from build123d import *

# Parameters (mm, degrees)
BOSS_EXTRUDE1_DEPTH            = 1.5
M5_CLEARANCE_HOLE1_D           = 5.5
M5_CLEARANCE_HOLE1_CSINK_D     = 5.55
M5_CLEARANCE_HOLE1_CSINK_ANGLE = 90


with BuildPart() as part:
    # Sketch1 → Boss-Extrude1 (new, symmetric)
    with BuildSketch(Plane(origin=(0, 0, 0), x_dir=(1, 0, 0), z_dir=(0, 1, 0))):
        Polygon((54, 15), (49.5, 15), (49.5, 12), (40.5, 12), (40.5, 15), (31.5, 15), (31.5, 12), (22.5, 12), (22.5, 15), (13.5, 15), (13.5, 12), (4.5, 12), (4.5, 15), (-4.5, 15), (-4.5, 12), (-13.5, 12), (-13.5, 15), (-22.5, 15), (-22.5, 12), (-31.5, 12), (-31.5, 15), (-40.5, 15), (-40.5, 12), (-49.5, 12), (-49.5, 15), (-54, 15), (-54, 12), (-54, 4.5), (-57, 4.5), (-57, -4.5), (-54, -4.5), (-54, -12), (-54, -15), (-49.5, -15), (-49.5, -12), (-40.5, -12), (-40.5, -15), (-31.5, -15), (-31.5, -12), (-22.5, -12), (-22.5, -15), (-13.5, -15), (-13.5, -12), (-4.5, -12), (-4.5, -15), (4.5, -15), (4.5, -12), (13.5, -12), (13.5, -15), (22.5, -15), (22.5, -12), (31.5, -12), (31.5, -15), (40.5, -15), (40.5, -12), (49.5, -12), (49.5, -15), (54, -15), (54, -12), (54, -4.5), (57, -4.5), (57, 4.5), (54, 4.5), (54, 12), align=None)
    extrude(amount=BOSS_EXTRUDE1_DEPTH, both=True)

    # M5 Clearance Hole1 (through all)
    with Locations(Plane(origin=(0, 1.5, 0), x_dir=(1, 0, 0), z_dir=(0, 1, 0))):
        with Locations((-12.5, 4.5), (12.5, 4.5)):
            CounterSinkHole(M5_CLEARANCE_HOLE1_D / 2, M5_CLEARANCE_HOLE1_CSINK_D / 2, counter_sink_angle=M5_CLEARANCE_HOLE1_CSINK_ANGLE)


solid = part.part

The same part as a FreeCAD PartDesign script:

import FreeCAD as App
import Part
import Sketcher
from FreeCAD import Vector
Q = App.Units.Quantity

doc = App.newDocument("Part")
body = doc.addObject("PartDesign::Body", "Body")

sketch1 = body.newObject("Sketcher::SketchObject", "Sketch")
sketch1.AttachmentSupport = (doc.getObject("XZ_Plane"), [""])
sketch1.MapMode = "FlatFace"
sketch1.addGeometry(Part.LineSegment(Vector(54, -15, 0), Vector(49.5, -15, 0)), False)
sketch1.addGeometry(Part.LineSegment(Vector(49.5, -15, 0), Vector(49.5, -12, 0)), False)
sketch1.addGeometry(Part.LineSegment(Vector(49.5, -12, 0), Vector(40.5, -12, 0)), False)
sketch1.addGeometry(Part.LineSegment(Vector(40.5, -12, 0), Vector(40.5, -15, 0)), False)
sketch1.addGeometry(Part.LineSegment(Vector(40.5, -15, 0), Vector(31.5, -15, 0)), False)
sketch1.addGeometry(Part.LineSegment(Vector(31.5, -15, 0), Vector(31.5, -12, 0)), False)
sketch1.addGeometry(Part.LineSegment(Vector(31.5, -12, 0), Vector(22.5, -12, 0)), False)
sketch1.addGeometry(Part.LineSegment(Vector(22.5, -12, 0), Vector(22.5, -15, 0)), False)
sketch1.addGeometry(Part.LineSegment(Vector(22.5, -15, 0), Vector(13.5, -15, 0)), False)
sketch1.addGeometry(Part.LineSegment(Vector(13.5, -15, 0), Vector(13.5, -12, 0)), False)
sketch1.addGeometry(Part.LineSegment(Vector(13.5, -12, 0), Vector(4.5, -12, 0)), False)
sketch1.addGeometry(Part.LineSegment(Vector(4.5, -12, 0), Vector(4.5, -15, 0)), False)
sketch1.addGeometry(Part.LineSegment(Vector(4.5, -15, 0), Vector(-4.5, -15, 0)), False)
sketch1.addGeometry(Part.LineSegment(Vector(-4.5, -15, 0), Vector(-4.5, -12, 0)), False)
sketch1.addGeometry(Part.LineSegment(Vector(-4.5, -12, 0), Vector(-13.5, -12, 0)), False)
sketch1.addGeometry(Part.LineSegment(Vector(-13.5, -12, 0), Vector(-13.5, -15, 0)), False)
sketch1.addGeometry(Part.LineSegment(Vector(-13.5, -15, 0), Vector(-22.5, -15, 0)), False)
sketch1.addGeometry(Part.LineSegment(Vector(-22.5, -15, 0), Vector(-22.5, -12, 0)), False)
sketch1.addGeometry(Part.LineSegment(Vector(-22.5, -12, 0), Vector(-31.5, -12, 0)), False)
sketch1.addGeometry(Part.LineSegment(Vector(-31.5, -12, 0), Vector(-31.5, -15, 0)), False)
sketch1.addGeometry(Part.LineSegment(Vector(-31.5, -15, 0), Vector(-40.5, -15, 0)), False)
sketch1.addGeometry(Part.LineSegment(Vector(-40.5, -15, 0), Vector(-40.5, -12, 0)), False)
sketch1.addGeometry(Part.LineSegment(Vector(-40.5, -12, 0), Vector(-49.5, -12, 0)), False)
sketch1.addGeometry(Part.LineSegment(Vector(-49.5, -12, 0), Vector(-49.5, -15, 0)), False)
sketch1.addGeometry(Part.LineSegment(Vector(-49.5, -15, 0), Vector(-54, -15, 0)), False)
sketch1.addGeometry(Part.LineSegment(Vector(-54, -15, 0), Vector(-54, -4.5, 0)), False)
sketch1.addGeometry(Part.LineSegment(Vector(-54, -4.5, 0), Vector(-57, -4.5, 0)), False)
sketch1.addGeometry(Part.LineSegment(Vector(-57, -4.5, 0), Vector(-57, 4.5, 0)), False)
sketch1.addGeometry(Part.LineSegment(Vector(-57, 4.5, 0), Vector(-54, 4.5, 0)), False)
sketch1.addGeometry(Part.LineSegment(Vector(-54, 4.5, 0), Vector(-54, 15, 0)), False)
sketch1.addGeometry(Part.LineSegment(Vector(-54, 15, 0), Vector(-49.5, 15, 0)), False)
sketch1.addGeometry(Part.LineSegment(Vector(-49.5, 15, 0), Vector(-49.5, 12, 0)), False)
sketch1.addGeometry(Part.LineSegment(Vector(-49.5, 12, 0), Vector(-40.5, 12, 0)), False)
sketch1.addGeometry(Part.LineSegment(Vector(-40.5, 12, 0), Vector(-40.5, 15, 0)), False)
sketch1.addGeometry(Part.LineSegment(Vector(-40.5, 15, 0), Vector(-31.5, 15, 0)), False)
sketch1.addGeometry(Part.LineSegment(Vector(-31.5, 15, 0), Vector(-31.5, 12, 0)), False)
sketch1.addGeometry(Part.LineSegment(Vector(-31.5, 12, 0), Vector(-22.5, 12, 0)), False)
sketch1.addGeometry(Part.LineSegment(Vector(-22.5, 12, 0), Vector(-22.5, 15, 0)), False)
sketch1.addGeometry(Part.LineSegment(Vector(-22.5, 15, 0), Vector(-13.5, 15, 0)), False)
sketch1.addGeometry(Part.LineSegment(Vector(-13.5, 15, 0), Vector(-13.5, 12, 0)), False)
sketch1.addGeometry(Part.LineSegment(Vector(-13.5, 12, 0), Vector(-4.5, 12, 0)), False)
sketch1.addGeometry(Part.LineSegment(Vector(-4.5, 12, 0), Vector(-4.5, 15, 0)), False)
sketch1.addGeometry(Part.LineSegment(Vector(-4.5, 15, 0), Vector(4.5, 15, 0)), False)
sketch1.addGeometry(Part.LineSegment(Vector(4.5, 15, 0), Vector(4.5, 12, 0)), False)
sketch1.addGeometry(Part.LineSegment(Vector(4.5, 12, 0), Vector(13.5, 12, 0)), False)
sketch1.addGeometry(Part.LineSegment(Vector(13.5, 12, 0), Vector(13.5, 15, 0)), False)
sketch1.addGeometry(Part.LineSegment(Vector(13.5, 15, 0), Vector(22.5, 15, 0)), False)
sketch1.addGeometry(Part.LineSegment(Vector(22.5, 15, 0), Vector(22.5, 12, 0)), False)
sketch1.addGeometry(Part.LineSegment(Vector(22.5, 12, 0), Vector(31.5, 12, 0)), False)
sketch1.addGeometry(Part.LineSegment(Vector(31.5, 12, 0), Vector(31.5, 15, 0)), False)
sketch1.addGeometry(Part.LineSegment(Vector(31.5, 15, 0), Vector(40.5, 15, 0)), False)
sketch1.addGeometry(Part.LineSegment(Vector(40.5, 15, 0), Vector(40.5, 12, 0)), False)
sketch1.addGeometry(Part.LineSegment(Vector(40.5, 12, 0), Vector(49.5, 12, 0)), False)
sketch1.addGeometry(Part.LineSegment(Vector(49.5, 12, 0), Vector(49.5, 15, 0)), False)
sketch1.addGeometry(Part.LineSegment(Vector(49.5, 15, 0), Vector(54, 15, 0)), False)
sketch1.addGeometry(Part.LineSegment(Vector(54, 15, 0), Vector(54, 4.5, 0)), False)
sketch1.addGeometry(Part.LineSegment(Vector(54, 4.5, 0), Vector(57, 4.5, 0)), False)
sketch1.addGeometry(Part.LineSegment(Vector(57, 4.5, 0), Vector(57, -4.5, 0)), False)
sketch1.addGeometry(Part.LineSegment(Vector(57, -4.5, 0), Vector(54, -4.5, 0)), False)
sketch1.addGeometry(Part.LineSegment(Vector(54, -4.5, 0), Vector(54, -15, 0)), False)
sketch1.addConstraint(Sketcher.Constraint("Coincident", 0, 2, 1, 1))
sketch1.addConstraint(Sketcher.Constraint("Coincident", 1, 2, 2, 1))
sketch1.addConstraint(Sketcher.Constraint("Coincident", 2, 2, 3, 1))
sketch1.addConstraint(Sketcher.Constraint("Coincident", 3, 2, 4, 1))
sketch1.addConstraint(Sketcher.Constraint("Coincident", 4, 2, 5, 1))
sketch1.addConstraint(Sketcher.Constraint("Coincident", 5, 2, 6, 1))
sketch1.addConstraint(Sketcher.Constraint("Coincident", 6, 2, 7, 1))
sketch1.addConstraint(Sketcher.Constraint("Coincident", 7, 2, 8, 1))
sketch1.addConstraint(Sketcher.Constraint("Coincident", 8, 2, 9, 1))
sketch1.addConstraint(Sketcher.Constraint("Coincident", 9, 2, 10, 1))
sketch1.addConstraint(Sketcher.Constraint("Coincident", 10, 2, 11, 1))
sketch1.addConstraint(Sketcher.Constraint("Coincident", 11, 2, 12, 1))
sketch1.addConstraint(Sketcher.Constraint("Coincident", 12, 2, 13, 1))
sketch1.addConstraint(Sketcher.Constraint("Coincident", 13, 2, 14, 1))
sketch1.addConstraint(Sketcher.Constraint("Coincident", 14, 2, 15, 1))
sketch1.addConstraint(Sketcher.Constraint("Coincident", 15, 2, 16, 1))
sketch1.addConstraint(Sketcher.Constraint("Coincident", 16, 2, 17, 1))
sketch1.addConstraint(Sketcher.Constraint("Coincident", 17, 2, 18, 1))
sketch1.addConstraint(Sketcher.Constraint("Coincident", 18, 2, 19, 1))
sketch1.addConstraint(Sketcher.Constraint("Coincident", 19, 2, 20, 1))
sketch1.addConstraint(Sketcher.Constraint("Coincident", 20, 2, 21, 1))
sketch1.addConstraint(Sketcher.Constraint("Coincident", 21, 2, 22, 1))
sketch1.addConstraint(Sketcher.Constraint("Coincident", 22, 2, 23, 1))
sketch1.addConstraint(Sketcher.Constraint("Coincident", 23, 2, 24, 1))
sketch1.addConstraint(Sketcher.Constraint("Coincident", 24, 2, 25, 1))
sketch1.addConstraint(Sketcher.Constraint("Coincident", 25, 2, 26, 1))
sketch1.addConstraint(Sketcher.Constraint("Coincident", 26, 2, 27, 1))
sketch1.addConstraint(Sketcher.Constraint("Coincident", 27, 2, 28, 1))
sketch1.addConstraint(Sketcher.Constraint("Coincident", 28, 2, 29, 1))
sketch1.addConstraint(Sketcher.Constraint("Coincident", 29, 2, 30, 1))
sketch1.addConstraint(Sketcher.Constraint("Coincident", 30, 2, 31, 1))
sketch1.addConstraint(Sketcher.Constraint("Coincident", 31, 2, 32, 1))
sketch1.addConstraint(Sketcher.Constraint("Coincident", 32, 2, 33, 1))
sketch1.addConstraint(Sketcher.Constraint("Coincident", 33, 2, 34, 1))
sketch1.addConstraint(Sketcher.Constraint("Coincident", 34, 2, 35, 1))
sketch1.addConstraint(Sketcher.Constraint("Coincident", 35, 2, 36, 1))
sketch1.addConstraint(Sketcher.Constraint("Coincident", 36, 2, 37, 1))
sketch1.addConstraint(Sketcher.Constraint("Coincident", 37, 2, 38, 1))
sketch1.addConstraint(Sketcher.Constraint("Coincident", 38, 2, 39, 1))
sketch1.addConstraint(Sketcher.Constraint("Coincident", 39, 2, 40, 1))
sketch1.addConstraint(Sketcher.Constraint("Coincident", 40, 2, 41, 1))
sketch1.addConstraint(Sketcher.Constraint("Coincident", 41, 2, 42, 1))
sketch1.addConstraint(Sketcher.Constraint("Coincident", 42, 2, 43, 1))
sketch1.addConstraint(Sketcher.Constraint("Coincident", 43, 2, 44, 1))
sketch1.addConstraint(Sketcher.Constraint("Coincident", 44, 2, 45, 1))
sketch1.addConstraint(Sketcher.Constraint("Coincident", 45, 2, 46, 1))
sketch1.addConstraint(Sketcher.Constraint("Coincident", 46, 2, 47, 1))
sketch1.addConstraint(Sketcher.Constraint("Coincident", 47, 2, 48, 1))
sketch1.addConstraint(Sketcher.Constraint("Coincident", 48, 2, 49, 1))
sketch1.addConstraint(Sketcher.Constraint("Coincident", 49, 2, 50, 1))
sketch1.addConstraint(Sketcher.Constraint("Coincident", 50, 2, 51, 1))
sketch1.addConstraint(Sketcher.Constraint("Coincident", 51, 2, 52, 1))
sketch1.addConstraint(Sketcher.Constraint("Coincident", 52, 2, 53, 1))
sketch1.addConstraint(Sketcher.Constraint("Coincident", 53, 2, 54, 1))
sketch1.addConstraint(Sketcher.Constraint("Coincident", 54, 2, 55, 1))
sketch1.addConstraint(Sketcher.Constraint("Coincident", 55, 2, 56, 1))
sketch1.addConstraint(Sketcher.Constraint("Coincident", 56, 2, 57, 1))
sketch1.addConstraint(Sketcher.Constraint("Coincident", 57, 2, 58, 1))
sketch1.addConstraint(Sketcher.Constraint("Coincident", 58, 2, 59, 1))
sketch1.addConstraint(Sketcher.Constraint("Coincident", 59, 2, 0, 1))
sketch1.addConstraint(Sketcher.Constraint("Horizontal", 0))
sketch1.addConstraint(Sketcher.Constraint("Vertical", 1))
sketch1.addConstraint(Sketcher.Constraint("Horizontal", 2))
sketch1.addConstraint(Sketcher.Constraint("Vertical", 3))
sketch1.addConstraint(Sketcher.Constraint("Horizontal", 4))
sketch1.addConstraint(Sketcher.Constraint("Vertical", 5))
sketch1.addConstraint(Sketcher.Constraint("Horizontal", 6))
sketch1.addConstraint(Sketcher.Constraint("Vertical", 7))
sketch1.addConstraint(Sketcher.Constraint("Horizontal", 8))
sketch1.addConstraint(Sketcher.Constraint("Vertical", 9))
sketch1.addConstraint(Sketcher.Constraint("Horizontal", 10))
sketch1.addConstraint(Sketcher.Constraint("Vertical", 11))
sketch1.addConstraint(Sketcher.Constraint("Horizontal", 12))
sketch1.addConstraint(Sketcher.Constraint("Vertical", 13))
sketch1.addConstraint(Sketcher.Constraint("Horizontal", 14))
sketch1.addConstraint(Sketcher.Constraint("Vertical", 15))
sketch1.addConstraint(Sketcher.Constraint("Horizontal", 16))
sketch1.addConstraint(Sketcher.Constraint("Vertical", 17))
sketch1.addConstraint(Sketcher.Constraint("Horizontal", 18))
sketch1.addConstraint(Sketcher.Constraint("Vertical", 19))
sketch1.addConstraint(Sketcher.Constraint("Horizontal", 20))
sketch1.addConstraint(Sketcher.Constraint("Vertical", 21))
sketch1.addConstraint(Sketcher.Constraint("Horizontal", 22))
sketch1.addConstraint(Sketcher.Constraint("Vertical", 23))
sketch1.addConstraint(Sketcher.Constraint("Horizontal", 24))
sketch1.addConstraint(Sketcher.Constraint("Vertical", 25))
sketch1.addConstraint(Sketcher.Constraint("Horizontal", 26))
sketch1.addConstraint(Sketcher.Constraint("Vertical", 27))
sketch1.addConstraint(Sketcher.Constraint("Horizontal", 28))
sketch1.addConstraint(Sketcher.Constraint("Vertical", 29))
sketch1.addConstraint(Sketcher.Constraint("Horizontal", 30))
sketch1.addConstraint(Sketcher.Constraint("Vertical", 31))
sketch1.addConstraint(Sketcher.Constraint("Horizontal", 32))
sketch1.addConstraint(Sketcher.Constraint("Vertical", 33))
sketch1.addConstraint(Sketcher.Constraint("Horizontal", 34))
sketch1.addConstraint(Sketcher.Constraint("Vertical", 35))
sketch1.addConstraint(Sketcher.Constraint("Horizontal", 36))
sketch1.addConstraint(Sketcher.Constraint("Vertical", 37))
sketch1.addConstraint(Sketcher.Constraint("Horizontal", 38))
sketch1.addConstraint(Sketcher.Constraint("Vertical", 39))
sketch1.addConstraint(Sketcher.Constraint("Horizontal", 40))
sketch1.addConstraint(Sketcher.Constraint("Vertical", 41))
sketch1.addConstraint(Sketcher.Constraint("Horizontal", 42))
sketch1.addConstraint(Sketcher.Constraint("Vertical", 43))
sketch1.addConstraint(Sketcher.Constraint("Horizontal", 44))
sketch1.addConstraint(Sketcher.Constraint("Vertical", 45))
sketch1.addConstraint(Sketcher.Constraint("Horizontal", 46))
sketch1.addConstraint(Sketcher.Constraint("Vertical", 47))
sketch1.addConstraint(Sketcher.Constraint("Horizontal", 48))
sketch1.addConstraint(Sketcher.Constraint("Vertical", 49))
sketch1.addConstraint(Sketcher.Constraint("Horizontal", 50))
sketch1.addConstraint(Sketcher.Constraint("Vertical", 51))
sketch1.addConstraint(Sketcher.Constraint("Horizontal", 52))
sketch1.addConstraint(Sketcher.Constraint("Vertical", 53))
sketch1.addConstraint(Sketcher.Constraint("Horizontal", 54))
sketch1.addConstraint(Sketcher.Constraint("Vertical", 55))
sketch1.addConstraint(Sketcher.Constraint("Horizontal", 56))
sketch1.addConstraint(Sketcher.Constraint("Vertical", 57))
sketch1.addConstraint(Sketcher.Constraint("Horizontal", 58))
sketch1.addConstraint(Sketcher.Constraint("Vertical", 59))
sketch1.addConstraint(Sketcher.Constraint("Symmetric", 0, 2, 30, 2, -1, 1))
sketch1.addConstraint(Sketcher.Constraint("Symmetric", 2, 2, 32, 2, -1, 1))
sketch1.addConstraint(Sketcher.Constraint("Symmetric", 4, 2, 34, 2, -1, 1))
sketch1.addConstraint(Sketcher.Constraint("Symmetric", 6, 2, 36, 2, -1, 1))
sketch1.addConstraint(Sketcher.Constraint("Symmetric", 8, 2, 38, 2, -1, 1))
sketch1.addConstraint(Sketcher.Constraint("Symmetric", 10, 2, 40, 2, -1, 1))
sketch1.addConstraint(Sketcher.Constraint("Symmetric", 12, 2, 42, 2, -1, 1))
sketch1.addConstraint(Sketcher.Constraint("Symmetric", 14, 2, 44, 2, -1, 1))
sketch1.addConstraint(Sketcher.Constraint("Symmetric", 16, 2, 46, 2, -1, 1))
sketch1.addConstraint(Sketcher.Constraint("Symmetric", 18, 2, 48, 2, -1, 1))
sketch1.addConstraint(Sketcher.Constraint("Symmetric", 20, 2, 50, 2, -1, 1))
sketch1.addConstraint(Sketcher.Constraint("Symmetric", 22, 2, 52, 2, -1, 1))
sketch1.addConstraint(Sketcher.Constraint("Symmetric", 24, 2, 54, 2, -1, 1))
sketch1.addConstraint(Sketcher.Constraint("Symmetric", 26, 2, 56, 2, -1, 1))
sketch1.addConstraint(Sketcher.Constraint("Symmetric", 28, 2, 58, 2, -1, 1))
sketch1.addConstraint(Sketcher.Constraint("Symmetric", 10, 2, 13, 2, -2))
sketch1.addConstraint(Sketcher.Constraint("Symmetric", 8, 2, 15, 2, -2))
sketch1.addConstraint(Sketcher.Constraint("Symmetric", 6, 2, 17, 2, -2))
sketch1.addConstraint(Sketcher.Constraint("Symmetric", 4, 2, 19, 2, -2))
sketch1.addConstraint(Sketcher.Constraint("Symmetric", 2, 2, 21, 2, -2))
sketch1.addConstraint(Sketcher.Constraint("Symmetric", 0, 2, 23, 2, -2))
sketch1.addConstraint(Sketcher.Constraint("Symmetric", 28, 2, 55, 2, -2))
sketch1.addConstraint(Sketcher.Constraint("Horizontal", 0, 2, 3, 2))
sketch1.addConstraint(Sketcher.Constraint("Horizontal", 2, 2, 5, 2))
sketch1.addConstraint(Sketcher.Constraint("Horizontal", 4, 2, 7, 2))
sketch1.addConstraint(Sketcher.Constraint("Horizontal", 6, 2, 9, 2))
sketch1.addConstraint(Sketcher.Constraint("Horizontal", 8, 2, 11, 2))
sketch1.addConstraint(Sketcher.Constraint("Equal", 2, 4))
sketch1.addConstraint(Sketcher.Constraint("Equal", 4, 6))
sketch1.addConstraint(Sketcher.Constraint("Equal", 6, 8))
sketch1.addConstraint(Sketcher.Constraint("Equal", 8, 10))
sketch1.addConstraint(Sketcher.Constraint("Equal", 10, 12))
sketch1.addConstraint(Sketcher.Constraint("Equal", 58, 1))
sketch1.addConstraint(Sketcher.Constraint("Equal", 52, 27))
sketch1.addConstraint(Sketcher.Constraint("DistanceX", 2, 2, 2, 1, Q("9 mm")))
sketch1.addConstraint(Sketcher.Constraint("DistanceX", 26, 2, 26, 1, Q("3 mm")))
sketch1.addConstraint(Sketcher.Constraint("DistanceX", 0, 2, 0, 1, Q("4.5 mm")))
sketch1.addConstraint(Sketcher.Constraint("DistanceY", 25, 1, 25, 2, Q("10.5 mm")))
pad1 = body.newObject("PartDesign::Pad", "Pad")
pad1.Profile = sketch1
pad1.Length = 3
pad1.Midplane = True

sketch2 = body.newObject("Sketcher::SketchObject", "Sketch001")
sketch2.AttachmentSupport = (doc.getObject("XZ_Plane"), [""])
sketch2.MapMode = "FlatFace"
sketch2.AttachmentOffset = App.Placement(Vector(0, 0, -1.5), App.Rotation())
sketch2.addGeometry(Part.Circle(Vector(-12.5, -4.5, 0), Vector(0, 0, 1), 2.8), False)
sketch2.addGeometry(Part.Circle(Vector(12.5, -4.5, 0), Vector(0, 0, 1), 2.8), False)
sketch2.addConstraint(Sketcher.Constraint("Equal", 0, 1))
sketch2.addConstraint(Sketcher.Constraint("Symmetric", 0, 3, 1, 3, -2))
sketch2.addConstraint(Sketcher.Constraint("Diameter", 0, Q("5.5 mm")))
sketch2.addConstraint(Sketcher.Constraint("DistanceX", 0, 3, 1, 3, Q("25 mm")))
sketch2.addConstraint(Sketcher.Constraint("DistanceY", 0, 3, -1, 1, Q("4.5 mm")))
doc.recompute()
hole = body.newObject("PartDesign::Hole", "Hole")
hole.Profile = sketch2
hole.ThreadType = "None"
hole.Diameter = 5.5
hole.DepthType = "ThroughAll"
hole.HoleCutType = "Countersink"
hole.HoleCutDiameter = 5.55
hole.HoleCutCountersinkAngle = 90
hole.Reversed = True

doc.recompute()
